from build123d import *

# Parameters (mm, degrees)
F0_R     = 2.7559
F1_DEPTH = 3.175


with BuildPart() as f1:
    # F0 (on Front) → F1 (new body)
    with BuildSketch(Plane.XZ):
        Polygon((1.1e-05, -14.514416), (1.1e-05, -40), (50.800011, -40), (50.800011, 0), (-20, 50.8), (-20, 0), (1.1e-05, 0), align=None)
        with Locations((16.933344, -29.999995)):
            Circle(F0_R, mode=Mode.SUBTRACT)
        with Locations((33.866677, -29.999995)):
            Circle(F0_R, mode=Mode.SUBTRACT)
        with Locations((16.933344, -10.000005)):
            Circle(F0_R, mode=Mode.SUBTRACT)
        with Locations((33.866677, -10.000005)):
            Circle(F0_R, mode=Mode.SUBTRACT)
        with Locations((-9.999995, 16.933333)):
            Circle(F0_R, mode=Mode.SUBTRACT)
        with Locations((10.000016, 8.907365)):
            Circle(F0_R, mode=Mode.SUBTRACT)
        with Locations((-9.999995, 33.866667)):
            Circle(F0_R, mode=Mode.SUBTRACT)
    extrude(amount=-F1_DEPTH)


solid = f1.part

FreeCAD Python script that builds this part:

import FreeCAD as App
import Part
import Sketcher

V = App.Vector
Q = App.Units.Quantity


def add_polygon(sketch, points):
    """Adds a closed chain of lines whose ends are joined by coincident constraints."""
    first, n = sketch.GeometryCount, len(points)
    for a, b in zip(points, points[1:] + points[:1]):
        sketch.addGeometry(Part.LineSegment(App.Vector(*a, 0), App.Vector(*b, 0)), False)
    for i in range(n):
        sketch.addConstraint(Sketcher.Constraint("Coincident", first + i, 2, first + (i + 1) % n, 1))

doc = App.newDocument("Part")
body = doc.addObject("PartDesign::Body", "Body")

# Sketch on XZ plane
sketch1 = body.newObject("Sketcher::SketchObject", "Sketch")
sketch1.AttachmentSupport = (doc.getObject("XZ_Plane"), [""])
sketch1.MapMode = "FlatFace"
add_polygon(sketch1, [(0, -40), (50.8, -40), (50.8, 0), (-20, 50.8), (-20, 0), (0, 0)])  # lines 0-5
sketch1.addGeometry(Part.Circle(V(16.9, -30, 0), V(0, 0, 1), 2.8), False)  # 6
sketch1.addGeometry(Part.Circle(V(33.9, -30, 0), V(0, 0, 1), 2.8), False)  # 7
sketch1.addGeometry(Part.Circle(V(16.9, -10, 0), V(0, 0, 1), 2.8), False)  # 8
sketch1.addGeometry(Part.Circle(V(33.9, -10, 0), V(0, 0, 1), 2.8), False)  # 9
sketch1.addGeometry(Part.Circle(V(-10, 16.9, 0), V(0, 0, 1), 2.8), False)  # 10
sketch1.addGeometry(Part.Circle(V(10, 8.9, 0), V(0, 0, 1), 2.8), False)  # 11
sketch1.addGeometry(Part.Circle(V(-10, 33.9, 0), V(0, 0, 1), 2.8), False)  # 12
sketch1.addConstraint([
    Sketcher.Constraint("Horizontal", 0),
    Sketcher.Constraint("Vertical", 1),
    Sketcher.Constraint("Vertical", 3),
    Sketcher.Constraint("Horizontal", 4),
    Sketcher.Constraint("Vertical", 5),
    Sketcher.Constraint("Equal", 6, 7),
    Sketcher.Constraint("Equal", 7, 8),
    Sketcher.Constraint("Equal", 8, 9),
    Sketcher.Constraint("Equal", 9, 10),
    Sketcher.Constraint("Equal", 10, 11),
    Sketcher.Constraint("Equal", 11, 12),
    Sketcher.Constraint("PointOnObject", 1, 2, -1),
    Sketcher.Constraint("PointOnObject", 3, 2, -1),
    Sketcher.Constraint("Horizontal", 6, 3, 7, 3),
    Sketcher.Constraint("Horizontal", 8, 3, 9, 3),
    Sketcher.Constraint("Vertical", 6, 3, 8, 3),
    Sketcher.Constraint("Vertical", 7, 3, 9, 3),
    Sketcher.Constraint("Vertical", 10, 3, 12, 3),
    Sketcher.Constraint("Equal", 0, 3),
    Sketcher.Constraint("DistanceX", 0, 1, 0, 2, Q("2 in")),
    Sketcher.Constraint("Diameter", 6, Q("0.217 in")),
    Sketcher.Constraint("DistanceY", 1, 1, 1, 2, 40.0),
    Sketcher.Constraint("DistanceX", 4, 1, 4, 2, 20.000011),
    Sketcher.Constraint("DistanceX", 2, 2, -1, 1, 20.0),
    Sketcher.Constraint("DistanceY", 6, 3, 8, 3, 19.99999),
    Sketcher.Constraint("DistanceX", 10, 3, 8, 3, 26.933339),
    Sketcher.Constraint("DistanceY", 6, 3, 10, 3, 46.933328),
    Sketcher.Constraint("DistanceX", 11, 3, 8, 3, 6.933328),
    Sketcher.Constraint("DistanceY", 8, 3, 11, 3, 18.90737),
    Sketcher.Constraint("DistanceX", 11, 3, 9, 3, 23.866661),
    Sketcher.Constraint("DistanceY", 6, 3, 12, 3, 63.866662),
    Sketcher.Constraint("DistanceX", -1, 1, 6, 3, 16.933344),
    Sketcher.Constraint("DistanceY", 6, 3, -1, 1, 29.999995),
])
pad1 = body.newObject("PartDesign::Pad", "Pad")
pad1.Profile = sketch1
pad1.Length = Q("0.125 in")
pad1.Reversed = True

doc.recompute()
